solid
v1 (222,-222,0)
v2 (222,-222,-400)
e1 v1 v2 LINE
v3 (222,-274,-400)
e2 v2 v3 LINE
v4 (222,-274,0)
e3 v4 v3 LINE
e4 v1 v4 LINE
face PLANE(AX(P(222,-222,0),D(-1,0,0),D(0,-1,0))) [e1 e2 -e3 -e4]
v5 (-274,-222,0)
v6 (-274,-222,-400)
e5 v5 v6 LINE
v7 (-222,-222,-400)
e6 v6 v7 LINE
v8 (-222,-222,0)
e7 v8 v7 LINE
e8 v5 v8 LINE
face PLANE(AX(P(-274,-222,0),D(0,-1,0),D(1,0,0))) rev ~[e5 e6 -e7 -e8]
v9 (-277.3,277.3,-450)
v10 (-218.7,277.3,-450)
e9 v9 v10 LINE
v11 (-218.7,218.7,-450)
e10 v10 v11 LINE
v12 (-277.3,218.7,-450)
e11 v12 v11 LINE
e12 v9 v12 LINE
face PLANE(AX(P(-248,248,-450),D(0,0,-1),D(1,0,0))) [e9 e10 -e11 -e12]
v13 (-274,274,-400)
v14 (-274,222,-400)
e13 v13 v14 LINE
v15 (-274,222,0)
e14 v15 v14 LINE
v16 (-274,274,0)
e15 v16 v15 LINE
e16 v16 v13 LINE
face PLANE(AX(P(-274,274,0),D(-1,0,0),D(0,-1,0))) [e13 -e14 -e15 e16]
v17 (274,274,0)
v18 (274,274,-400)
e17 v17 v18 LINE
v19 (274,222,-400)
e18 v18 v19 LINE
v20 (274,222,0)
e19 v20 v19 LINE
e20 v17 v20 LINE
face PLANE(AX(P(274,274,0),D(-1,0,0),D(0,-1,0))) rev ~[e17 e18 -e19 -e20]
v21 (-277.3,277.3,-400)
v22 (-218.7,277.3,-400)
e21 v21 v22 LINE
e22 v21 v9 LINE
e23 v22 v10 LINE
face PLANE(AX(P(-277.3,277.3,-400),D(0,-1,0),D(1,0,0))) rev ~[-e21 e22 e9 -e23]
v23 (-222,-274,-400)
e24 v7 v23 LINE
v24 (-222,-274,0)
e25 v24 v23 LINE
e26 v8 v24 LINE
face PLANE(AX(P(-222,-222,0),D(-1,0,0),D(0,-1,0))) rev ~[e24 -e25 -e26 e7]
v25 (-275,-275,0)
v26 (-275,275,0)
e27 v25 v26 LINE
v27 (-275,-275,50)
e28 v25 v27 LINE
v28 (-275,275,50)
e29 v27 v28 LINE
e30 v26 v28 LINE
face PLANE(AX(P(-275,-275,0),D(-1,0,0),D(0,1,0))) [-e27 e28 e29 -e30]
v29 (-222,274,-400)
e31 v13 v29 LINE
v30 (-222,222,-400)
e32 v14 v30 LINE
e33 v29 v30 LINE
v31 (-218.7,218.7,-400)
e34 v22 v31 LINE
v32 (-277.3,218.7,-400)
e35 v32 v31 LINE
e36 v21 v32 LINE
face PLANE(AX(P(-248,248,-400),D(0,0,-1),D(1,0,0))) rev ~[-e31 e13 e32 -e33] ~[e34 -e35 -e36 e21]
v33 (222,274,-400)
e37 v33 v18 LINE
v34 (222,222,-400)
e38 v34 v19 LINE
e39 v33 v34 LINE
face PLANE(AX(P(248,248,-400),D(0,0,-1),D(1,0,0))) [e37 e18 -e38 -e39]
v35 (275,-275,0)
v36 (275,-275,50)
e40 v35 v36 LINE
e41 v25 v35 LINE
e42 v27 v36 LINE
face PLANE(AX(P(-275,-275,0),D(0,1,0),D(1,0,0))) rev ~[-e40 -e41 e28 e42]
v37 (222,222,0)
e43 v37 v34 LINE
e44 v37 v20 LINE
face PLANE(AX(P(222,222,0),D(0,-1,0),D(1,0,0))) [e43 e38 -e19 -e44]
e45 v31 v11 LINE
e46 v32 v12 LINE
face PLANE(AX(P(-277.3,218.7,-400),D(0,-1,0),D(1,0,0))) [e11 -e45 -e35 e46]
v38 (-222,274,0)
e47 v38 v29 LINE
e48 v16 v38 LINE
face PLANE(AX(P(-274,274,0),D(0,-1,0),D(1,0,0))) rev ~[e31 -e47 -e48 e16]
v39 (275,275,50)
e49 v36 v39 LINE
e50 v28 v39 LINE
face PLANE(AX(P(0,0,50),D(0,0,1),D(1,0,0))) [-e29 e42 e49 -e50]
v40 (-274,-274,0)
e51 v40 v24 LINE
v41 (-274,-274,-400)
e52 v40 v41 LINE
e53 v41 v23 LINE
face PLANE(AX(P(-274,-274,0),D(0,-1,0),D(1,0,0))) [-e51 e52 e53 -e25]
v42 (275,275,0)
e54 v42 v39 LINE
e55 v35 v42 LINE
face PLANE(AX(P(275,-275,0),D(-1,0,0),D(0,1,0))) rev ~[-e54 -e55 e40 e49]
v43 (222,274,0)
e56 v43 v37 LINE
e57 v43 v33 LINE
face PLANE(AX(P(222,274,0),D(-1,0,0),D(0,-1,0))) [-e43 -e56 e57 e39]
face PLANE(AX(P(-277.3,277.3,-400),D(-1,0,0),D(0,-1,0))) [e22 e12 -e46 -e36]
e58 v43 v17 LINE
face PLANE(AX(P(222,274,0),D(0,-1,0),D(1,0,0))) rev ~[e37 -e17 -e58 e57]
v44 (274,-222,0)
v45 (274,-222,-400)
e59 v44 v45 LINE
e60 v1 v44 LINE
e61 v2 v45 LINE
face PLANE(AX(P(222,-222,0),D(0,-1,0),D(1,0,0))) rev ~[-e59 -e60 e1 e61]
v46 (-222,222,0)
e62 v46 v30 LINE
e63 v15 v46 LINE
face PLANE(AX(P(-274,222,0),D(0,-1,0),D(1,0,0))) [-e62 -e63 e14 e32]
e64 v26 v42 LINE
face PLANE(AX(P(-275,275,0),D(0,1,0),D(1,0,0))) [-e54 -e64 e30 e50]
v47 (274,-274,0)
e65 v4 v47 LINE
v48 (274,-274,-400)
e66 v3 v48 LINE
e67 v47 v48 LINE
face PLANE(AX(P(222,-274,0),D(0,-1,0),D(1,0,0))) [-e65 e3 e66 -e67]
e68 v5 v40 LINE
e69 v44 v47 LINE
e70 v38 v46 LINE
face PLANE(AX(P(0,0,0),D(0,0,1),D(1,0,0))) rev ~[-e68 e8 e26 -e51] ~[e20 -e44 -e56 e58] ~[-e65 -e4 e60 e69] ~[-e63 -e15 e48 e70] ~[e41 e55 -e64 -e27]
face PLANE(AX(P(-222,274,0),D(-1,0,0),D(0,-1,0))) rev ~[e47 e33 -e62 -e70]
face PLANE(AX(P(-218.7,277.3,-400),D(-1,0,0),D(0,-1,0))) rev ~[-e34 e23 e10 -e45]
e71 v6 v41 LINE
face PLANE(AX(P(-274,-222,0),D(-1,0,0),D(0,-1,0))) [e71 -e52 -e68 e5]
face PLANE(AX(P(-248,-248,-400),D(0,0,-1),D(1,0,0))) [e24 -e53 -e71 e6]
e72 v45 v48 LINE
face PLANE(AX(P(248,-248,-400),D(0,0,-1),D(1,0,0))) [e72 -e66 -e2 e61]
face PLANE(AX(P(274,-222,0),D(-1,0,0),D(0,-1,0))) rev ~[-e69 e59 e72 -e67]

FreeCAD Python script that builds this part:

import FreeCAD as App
import Part
import Sketcher

V = App.Vector
Q = App.Units.Quantity


def add_polygon(sketch, points):
    """Adds a closed chain of lines whose ends are joined by coincident constraints."""
    first, n = sketch.GeometryCount, len(points)
    for a, b in zip(points, points[1:] + points[:1]):
        sketch.addGeometry(Part.LineSegment(App.Vector(*a, 0), App.Vector(*b, 0)), False)
    for i in range(n):
        sketch.addConstraint(Sketcher.Constraint("Coincident", first + i, 2, first + (i + 1) % n, 1))

doc = App.newDocument("Part")
params = doc.addObject("Spreadsheet::Sheet", "Params")
for row, (alias, value) in enumerate([
    ("sketch1_width", "550 mm"),
    ("pad1_length", "50 mm"),
    ("sketch2_width", "52 mm"),
    ("pad2_length", "400 mm"),
    ("sketch3_width", "58.6 mm"),
    ("pad3_length", "50 mm"),
], start=1):
    params.set(f"A{row}", alias)
    params.set(f"B{row}", "=" + value)
    params.setAlias(f"B{row}", alias)

body = doc.addObject("PartDesign::Body", "Body")

# Sketch on XY plane
sketch1 = body.newObject("Sketcher::SketchObject", "Sketch")
sketch1.AttachmentSupport = (doc.getObject("XY_Plane"), [""])
sketch1.MapMode = "FlatFace"
add_polygon(sketch1, [(-275, 275), (-275, -275), (275, -275), (275, 275)])  # lines 0-3
sketch1.addConstraint([
    Sketcher.Constraint("Vertical", 0),
    Sketcher.Constraint("Horizontal", 1),
    Sketcher.Constraint("Vertical", 2),
    Sketcher.Constraint("Horizontal", 3),
    Sketcher.Constraint("Symmetric", 0, 2, 2, 2, -1, 1),
    Sketcher.Constraint("Equal", 3, 0),
    Sketcher.Constraint("DistanceX", 1, 1, 1, 2, Q("550 mm")),
])
sketch1.setExpression("Constraints[10]", "Params.sketch1_width")
pad1 = body.newObject("PartDesign::Pad", "Pad")
pad1.Profile = sketch1
pad1.setExpression("Length", "Params.pad1_length")

# Sketch on XY plane
sketch2 = body.newObject("Sketcher::SketchObject", "Sketch001")
sketch2.AttachmentSupport = (doc.getObject("XY_Plane"), [""])
sketch2.MapMode = "FlatFace"
add_polygon(sketch2, [(-274, -274), (-274, -222), (-222, -222), (-222, -274)])  # lines 0-3
add_polygon(sketch2, [(222, -274), (222, -222), (274, -222), (274, -274)])  # lines 4-7
add_polygon(sketch2, [(222, 222), (222, 274), (274, 274), (274, 222)])  # lines 8-11
add_polygon(sketch2, [(-274, 222), (-274, 274), (-222, 274), (-222, 222)])  # lines 12-15
sketch2.addConstraint([
    Sketcher.Constraint("Vertical", 0),
    Sketcher.Constraint("Horizontal", 1),
    Sketcher.Constraint("Vertical", 2),
    Sketcher.Constraint("Horizontal", 3),
    Sketcher.Constraint("Vertical", 4),
    Sketcher.Constraint("Horizontal", 5),
    Sketcher.Constraint("Vertical", 6),
    Sketcher.Constraint("Horizontal", 7),
    Sketcher.Constraint("Vertical", 8),
    Sketcher.Constraint("Horizontal", 9),
    Sketcher.Constraint("Vertical", 10),
    Sketcher.Constraint("Horizontal", 11),
    Sketcher.Constraint("Vertical", 12),
    Sketcher.Constraint("Horizontal", 13),
    Sketcher.Constraint("Vertical", 14),
    Sketcher.Constraint("Horizontal", 15),
    Sketcher.Constraint("Symmetric", 2, 2, 8, 2, -1, 1),
    Sketcher.Constraint("Symmetric", 0, 2, 10, 2, -1, 1),
    Sketcher.Constraint("Symmetric", 6, 2, 12, 2, -1, 1),
    Sketcher.Constraint("Symmetric", 4, 2, 14, 2, -1, 1),
    Sketcher.Constraint("Symmetric", 1, 2, 4, 2, -2),
    Sketcher.Constraint("Symmetric", 3, 2, 6, 2, -2),
    Sketcher.Constraint("Equal", 15, 0),
    Sketcher.Constraint("DistanceX", 1, 1, 1, 2, Q("52 mm")),
    Sketcher.Constraint("DistanceX", 0, 2, -1, 1, Q("274 mm")),
    Sketcher.Constraint("DistanceY", 0, 2, -1, 1, Q("222 mm")),
])
sketch2.setExpression("Constraints[39]", "Params.sketch2_width")
pad2 = body.newObject("PartDesign::Pad", "Pad001")
pad2.Profile = sketch2
pad2.setExpression("Length", "Params.pad2_length")
pad2.Reversed = True

# Sketch on XY plane
sketch3 = body.newObject("Sketcher::SketchObject", "Sketch002")
sketch3.AttachmentSupport = (doc.getObject("XY_Plane"), [""])
sketch3.MapMode = "FlatFace"
sketch3.AttachmentOffset = App.Placement(V(0, 0, -400), App.Rotation())
add_polygon(sketch3, [(-277, 219), (-277, 277), (-219, 277), (-219, 219)])  # lines 0-3
sketch3.addConstraint([
    Sketcher.Constraint("Vertical", 0),
    Sketcher.Constraint("Horizontal", 1),
    Sketcher.Constraint("Vertical", 2),
    Sketcher.Constraint("Horizontal", 3),
    Sketcher.Constraint("Equal", 3, 0),
    Sketcher.Constraint("DistanceX", 1, 1, 1, 2, Q("58.6 mm")),
    Sketcher.Constraint("DistanceX", 0, 2, -1, 1, Q("277.3 mm")),
    Sketcher.Constraint("DistanceY", -1, 1, 0, 2, Q("277.3 mm")),
])
sketch3.setExpression("Constraints[9]", "Params.sketch3_width")
pad3 = body.newObject("PartDesign::Pad", "Pad002")
pad3.Profile = sketch3
pad3.setExpression("Length", "Params.pad3_length")
pad3.Reversed = True

doc.recompute()
